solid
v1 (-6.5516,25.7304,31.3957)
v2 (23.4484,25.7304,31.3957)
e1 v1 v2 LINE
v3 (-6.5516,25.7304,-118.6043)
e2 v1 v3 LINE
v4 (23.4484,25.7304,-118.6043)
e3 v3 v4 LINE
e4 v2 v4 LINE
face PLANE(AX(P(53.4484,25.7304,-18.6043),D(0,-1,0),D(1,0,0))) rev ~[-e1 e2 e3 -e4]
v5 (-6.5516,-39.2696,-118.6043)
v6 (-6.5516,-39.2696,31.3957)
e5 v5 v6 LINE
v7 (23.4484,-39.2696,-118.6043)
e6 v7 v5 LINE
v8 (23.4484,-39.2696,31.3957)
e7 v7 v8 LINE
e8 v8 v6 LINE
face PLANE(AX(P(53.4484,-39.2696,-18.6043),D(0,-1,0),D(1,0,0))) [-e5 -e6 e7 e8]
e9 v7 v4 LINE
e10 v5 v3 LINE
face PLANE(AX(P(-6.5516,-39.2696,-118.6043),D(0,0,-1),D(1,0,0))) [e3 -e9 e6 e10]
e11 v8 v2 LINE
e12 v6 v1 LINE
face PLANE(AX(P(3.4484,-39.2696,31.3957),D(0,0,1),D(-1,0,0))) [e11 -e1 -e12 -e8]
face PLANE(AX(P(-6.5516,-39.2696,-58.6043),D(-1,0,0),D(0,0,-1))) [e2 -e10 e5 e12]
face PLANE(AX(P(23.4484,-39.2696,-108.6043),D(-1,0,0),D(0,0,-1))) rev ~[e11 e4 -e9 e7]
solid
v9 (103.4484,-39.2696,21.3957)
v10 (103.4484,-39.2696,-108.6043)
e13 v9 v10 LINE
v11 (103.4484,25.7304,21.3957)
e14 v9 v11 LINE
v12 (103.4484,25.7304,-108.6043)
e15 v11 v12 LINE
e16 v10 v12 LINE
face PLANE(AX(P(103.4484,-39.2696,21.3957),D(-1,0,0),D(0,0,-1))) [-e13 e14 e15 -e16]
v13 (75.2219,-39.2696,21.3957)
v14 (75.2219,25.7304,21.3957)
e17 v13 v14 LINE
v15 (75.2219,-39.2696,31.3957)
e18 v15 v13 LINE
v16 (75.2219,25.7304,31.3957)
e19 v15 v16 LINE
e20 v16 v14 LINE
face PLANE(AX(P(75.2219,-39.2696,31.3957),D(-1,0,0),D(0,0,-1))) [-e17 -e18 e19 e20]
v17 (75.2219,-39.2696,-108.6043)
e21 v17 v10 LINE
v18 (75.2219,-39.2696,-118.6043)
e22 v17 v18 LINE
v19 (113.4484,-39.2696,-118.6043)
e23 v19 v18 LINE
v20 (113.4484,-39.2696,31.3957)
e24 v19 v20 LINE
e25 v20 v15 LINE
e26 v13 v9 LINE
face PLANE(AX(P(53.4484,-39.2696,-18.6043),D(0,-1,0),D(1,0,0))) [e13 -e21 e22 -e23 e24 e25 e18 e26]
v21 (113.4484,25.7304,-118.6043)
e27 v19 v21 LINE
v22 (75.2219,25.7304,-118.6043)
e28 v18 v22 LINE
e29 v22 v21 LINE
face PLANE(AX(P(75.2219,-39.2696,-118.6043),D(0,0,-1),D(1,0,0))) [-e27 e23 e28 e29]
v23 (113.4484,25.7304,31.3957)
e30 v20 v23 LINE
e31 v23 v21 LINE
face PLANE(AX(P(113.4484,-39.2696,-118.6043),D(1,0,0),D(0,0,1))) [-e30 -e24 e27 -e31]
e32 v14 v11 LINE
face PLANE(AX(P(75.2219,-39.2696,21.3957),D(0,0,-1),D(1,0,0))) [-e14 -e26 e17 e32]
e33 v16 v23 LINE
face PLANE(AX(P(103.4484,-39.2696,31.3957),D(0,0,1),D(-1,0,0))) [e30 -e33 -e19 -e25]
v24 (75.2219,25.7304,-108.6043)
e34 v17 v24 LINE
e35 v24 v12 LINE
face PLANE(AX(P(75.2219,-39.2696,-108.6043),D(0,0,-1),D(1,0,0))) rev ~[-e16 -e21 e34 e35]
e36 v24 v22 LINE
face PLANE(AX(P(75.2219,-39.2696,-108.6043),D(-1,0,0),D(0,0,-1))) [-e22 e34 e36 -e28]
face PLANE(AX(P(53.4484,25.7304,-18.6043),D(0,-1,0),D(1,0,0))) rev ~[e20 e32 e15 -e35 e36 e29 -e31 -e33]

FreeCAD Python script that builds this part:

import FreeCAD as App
import Part
import Sketcher
from FreeCAD import Vector
Q = App.Units.Quantity

doc = App.newDocument("Part")
body = doc.addObject("PartDesign::Body", "Body")
body.AllowCompound = True

sketch1 = body.newObject("Sketcher::SketchObject", "Sketch")
sketch1.AttachmentSupport = (doc.getObject("XZ_Plane"), [""])
sketch1.MapMode = "FlatFace"
sketch1.AttachmentOffset = App.Placement(Vector(0, 0, 39.2696), App.Rotation())
sketch1.addGeometry(Part.LineSegment(Vector(-7, -119, 0), Vector(23, -119, 0)), False)
sketch1.addGeometry(Part.LineSegment(Vector(23, -119, 0), Vector(23, 31, 0)), False)
sketch1.addGeometry(Part.LineSegment(Vector(23, 31, 0), Vector(-7, 31, 0)), False)
sketch1.addGeometry(Part.LineSegment(Vector(-7, 31, 0), Vector(-7, -119, 0)), False)
sketch1.addGeometry(Part.LineSegment(Vector(75, -109, 0), Vector(75, -119, 0)), False)
sketch1.addGeometry(Part.LineSegment(Vector(75, -119, 0), Vector(113, -119, 0)), False)
sketch1.addGeometry(Part.LineSegment(Vector(113, -119, 0), Vector(113, 31, 0)), False)
sketch1.addGeometry(Part.LineSegment(Vector(113, 31, 0), Vector(75, 31, 0)), False)
sketch1.addGeometry(Part.LineSegment(Vector(75, 31, 0), Vector(75, 21, 0)), False)
sketch1.addGeometry(Part.LineSegment(Vector(75, 21, 0), Vector(103, 21, 0)), False)
sketch1.addGeometry(Part.LineSegment(Vector(103, 21, 0), Vector(103, -109, 0)), False)
sketch1.addGeometry(Part.LineSegment(Vector(103, -109, 0), Vector(75, -109, 0)), False)
sketch1.addConstraint(Sketcher.Constraint("Coincident", 0, 2, 1, 1))
sketch1.addConstraint(Sketcher.Constraint("Coincident", 1, 2, 2, 1))
sketch1.addConstraint(Sketcher.Constraint("Coincident", 2, 2, 3, 1))
sketch1.addConstraint(Sketcher.Constraint("Coincident", 3, 2, 0, 1))
sketch1.addConstraint(Sketcher.Constraint("Coincident", 4, 2, 5, 1))
sketch1.addConstraint(Sketcher.Constraint("Coincident", 5, 2, 6, 1))
sketch1.addConstraint(Sketcher.Constraint("Coincident", 6, 2, 7, 1))
sketch1.addConstraint(Sketcher.Constraint("Coincident", 7, 2, 8, 1))
sketch1.addConstraint(Sketcher.Constraint("Coincident", 8, 2, 9, 1))
sketch1.addConstraint(Sketcher.Constraint("Coincident", 9, 2, 10, 1))
sketch1.addConstraint(Sketcher.Constraint("Coincident", 10, 2, 11, 1))
sketch1.addConstraint(Sketcher.Constraint("Coincident", 11, 2, 4, 1))
sketch1.addConstraint(Sketcher.Constraint("Horizontal", 0))
sketch1.addConstraint(Sketcher.Constraint("Vertical", 1))
sketch1.addConstraint(Sketcher.Constraint("Horizontal", 2))
sketch1.addConstraint(Sketcher.Constraint("Vertical", 3))
sketch1.addConstraint(Sketcher.Constraint("Vertical", 4))
sketch1.addConstraint(Sketcher.Constraint("Horizontal", 5))
sketch1.addConstraint(Sketcher.Constraint("Vertical", 6))
sketch1.addConstraint(Sketcher.Constraint("Horizontal", 7))
sketch1.addConstraint(Sketcher.Constraint("Vertical", 8))
sketch1.addConstraint(Sketcher.Constraint("Horizontal", 9))
sketch1.addConstraint(Sketcher.Constraint("Vertical", 10))
sketch1.addConstraint(Sketcher.Constraint("Horizontal", 11))
sketch1.addConstraint(Sketcher.Constraint("Horizontal", 3, 2, 4, 2))
sketch1.addConstraint(Sketcher.Constraint("Horizontal", 2, 2, 6, 2))
sketch1.addConstraint(Sketcher.Constraint("Vertical", 4, 2, 7, 2))
sketch1.addConstraint(Sketcher.Constraint("Equal", 4, 8))
sketch1.addConstraint(Sketcher.Constraint("DistanceY", 1, 1, 1, 2, Q("150 mm")))
sketch1.addConstraint(Sketcher.Constraint("DistanceY", 4, 2, 4, 1, Q("10 mm")))
sketch1.addConstraint(Sketcher.Constraint("DistanceX", 3, 2, 5, 2, Q("120 mm")))
sketch1.addConstraint(Sketcher.Constraint("DistanceX", 9, 2, 6, 2, Q("10 mm")))
sketch1.addConstraint(Sketcher.Constraint("DistanceX", 0, 1, 0, 2, Q("30 mm")))
sketch1.addConstraint(Sketcher.Constraint("DistanceX", 5, 1, 5, 2, Q("38.2265 mm")))
sketch1.addConstraint(Sketcher.Constraint("DistanceX", -1, 1, 4, 2, Q("75.222 mm")))
sketch1.addConstraint(Sketcher.Constraint("DistanceY", 0, 2, -1, 1, Q("118.6043 mm")))
pad1 = body.newObject("PartDesign::Pad", "Pad")
pad1.Profile = sketch1
pad1.Length = 65
pad1.Reversed = True

doc.recompute()
